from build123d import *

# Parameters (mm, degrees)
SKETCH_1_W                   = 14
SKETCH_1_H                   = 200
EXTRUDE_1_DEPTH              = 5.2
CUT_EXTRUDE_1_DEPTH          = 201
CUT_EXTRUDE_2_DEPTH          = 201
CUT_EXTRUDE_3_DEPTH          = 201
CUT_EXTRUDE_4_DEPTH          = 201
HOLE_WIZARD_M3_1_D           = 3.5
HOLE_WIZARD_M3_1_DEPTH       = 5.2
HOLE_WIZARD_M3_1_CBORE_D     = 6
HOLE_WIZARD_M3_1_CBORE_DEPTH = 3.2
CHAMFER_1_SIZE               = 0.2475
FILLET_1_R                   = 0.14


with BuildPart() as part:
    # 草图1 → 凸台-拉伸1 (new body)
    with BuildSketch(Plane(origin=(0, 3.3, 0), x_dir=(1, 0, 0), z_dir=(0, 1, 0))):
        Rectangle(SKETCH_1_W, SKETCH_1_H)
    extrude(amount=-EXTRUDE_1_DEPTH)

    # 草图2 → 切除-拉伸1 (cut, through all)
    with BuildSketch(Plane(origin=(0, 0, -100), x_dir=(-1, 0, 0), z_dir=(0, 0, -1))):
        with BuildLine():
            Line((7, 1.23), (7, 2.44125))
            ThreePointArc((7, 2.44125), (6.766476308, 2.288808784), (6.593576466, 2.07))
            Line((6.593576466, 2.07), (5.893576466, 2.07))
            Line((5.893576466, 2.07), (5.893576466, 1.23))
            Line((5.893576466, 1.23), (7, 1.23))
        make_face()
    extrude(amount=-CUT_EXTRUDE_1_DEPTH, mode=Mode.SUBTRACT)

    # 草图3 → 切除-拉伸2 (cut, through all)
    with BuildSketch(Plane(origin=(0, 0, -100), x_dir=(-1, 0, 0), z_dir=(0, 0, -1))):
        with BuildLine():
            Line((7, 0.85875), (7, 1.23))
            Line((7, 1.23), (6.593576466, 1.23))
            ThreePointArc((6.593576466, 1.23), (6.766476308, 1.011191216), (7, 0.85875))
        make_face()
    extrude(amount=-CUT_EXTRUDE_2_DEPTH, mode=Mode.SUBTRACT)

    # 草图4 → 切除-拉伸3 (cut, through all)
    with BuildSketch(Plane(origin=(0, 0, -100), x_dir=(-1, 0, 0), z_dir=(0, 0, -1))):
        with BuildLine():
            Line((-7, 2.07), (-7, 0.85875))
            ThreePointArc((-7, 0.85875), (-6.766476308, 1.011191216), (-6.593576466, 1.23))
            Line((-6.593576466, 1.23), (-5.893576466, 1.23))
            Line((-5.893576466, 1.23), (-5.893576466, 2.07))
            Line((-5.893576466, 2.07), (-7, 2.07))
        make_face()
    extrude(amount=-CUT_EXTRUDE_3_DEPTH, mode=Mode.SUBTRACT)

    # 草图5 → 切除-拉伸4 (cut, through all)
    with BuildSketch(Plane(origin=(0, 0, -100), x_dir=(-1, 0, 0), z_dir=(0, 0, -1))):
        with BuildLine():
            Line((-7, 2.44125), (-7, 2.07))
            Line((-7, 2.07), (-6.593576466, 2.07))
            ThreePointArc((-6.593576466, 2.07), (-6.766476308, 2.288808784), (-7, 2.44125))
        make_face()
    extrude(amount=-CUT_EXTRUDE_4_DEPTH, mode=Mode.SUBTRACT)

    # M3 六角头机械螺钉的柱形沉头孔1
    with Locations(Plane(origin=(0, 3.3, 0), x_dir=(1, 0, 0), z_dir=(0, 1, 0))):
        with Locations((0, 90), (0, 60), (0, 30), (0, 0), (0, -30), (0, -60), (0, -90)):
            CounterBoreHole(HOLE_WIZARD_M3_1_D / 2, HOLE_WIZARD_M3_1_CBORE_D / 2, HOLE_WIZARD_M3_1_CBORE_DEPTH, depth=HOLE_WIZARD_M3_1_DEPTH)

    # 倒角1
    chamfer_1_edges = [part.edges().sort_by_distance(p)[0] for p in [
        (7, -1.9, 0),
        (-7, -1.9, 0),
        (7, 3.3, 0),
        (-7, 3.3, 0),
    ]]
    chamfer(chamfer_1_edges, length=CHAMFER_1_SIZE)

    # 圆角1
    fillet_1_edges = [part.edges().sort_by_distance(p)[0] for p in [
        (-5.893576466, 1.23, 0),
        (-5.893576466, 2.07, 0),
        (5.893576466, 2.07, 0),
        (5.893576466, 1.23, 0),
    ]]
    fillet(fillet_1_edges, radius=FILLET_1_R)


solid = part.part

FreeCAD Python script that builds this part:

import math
import FreeCAD as App
import Part
import Sketcher

V = App.Vector
Q = App.Units.Quantity


def edges_at(feature, points):
    """Names of the edges that pass closest to the given points."""
    edges = feature.Shape.Edges
    near = lambda p: min(range(len(edges)), key=lambda i: edges[i].distToShape(Part.Vertex(*p))[0])
    return sorted({f"Edge{near(p) + 1}" for p in points})


def add_polygon(sketch, points):
    """Adds a closed chain of lines whose ends are joined by coincident constraints."""
    first, n = sketch.GeometryCount, len(points)
    for a, b in zip(points, points[1:] + points[:1]):
        sketch.addGeometry(Part.LineSegment(App.Vector(*a, 0), App.Vector(*b, 0)), False)
    for i in range(n):
        sketch.addConstraint(Sketcher.Constraint("Coincident", first + i, 2, first + (i + 1) % n, 1))

doc = App.newDocument("Part")
body = doc.addObject("PartDesign::Body", "Body")

# Sketch on XZ plane
sketch1 = body.newObject("Sketcher::SketchObject", "Sketch")
sketch1.AttachmentSupport = (doc.getObject("XZ_Plane"), [""])
sketch1.MapMode = "FlatFace"
sketch1.AttachmentOffset = App.Placement(V(0, 0, -3.3), App.Rotation())
add_polygon(sketch1, [(-7, -100), (-7, 100), (7, 100), (7, -100)])  # lines 0-3
sketch1.addConstraint([
    Sketcher.Constraint("Vertical", 0),
    Sketcher.Constraint("Horizontal", 1),
    Sketcher.Constraint("Vertical", 2),
    Sketcher.Constraint("Horizontal", 3),
    Sketcher.Constraint("Symmetric", 0, 2, 2, 2, -1, 1),
    Sketcher.Constraint("DistanceX", 1, 1, 1, 2, Q("14 mm")),
    Sketcher.Constraint("DistanceY", 0, 1, 0, 2, Q("200 mm")),
])
pad1 = body.newObject("PartDesign::Pad", "Pad")
pad1.Profile = sketch1
pad1.Length = 5.2

# Sketch on XY plane
sketch2 = body.newObject("Sketcher::SketchObject", "Sketch001")
sketch2.AttachmentSupport = (doc.getObject("XY_Plane"), [""])
sketch2.MapMode = "FlatFace"
sketch2.AttachmentOffset = App.Placement(V(0, 0, -100), App.Rotation())
sketch2.addGeometry([
    Part.LineSegment(V(-7, 1.2, 0), V(-7, 2.4, 0)),  # 0
    Part.ArcOfCircle(Part.Circle(V(-7.4, 1.6, 0), V(0, 0, 1), 0.9), math.radians(29), math.radians(66)),  # 1
    Part.LineSegment(V(-6.6, 2.1, 0), V(-5.9, 2.1, 0)),  # 2
    Part.LineSegment(V(-5.9, 2.1, 0), V(-5.9, 1.2, 0)),  # 3
    Part.LineSegment(V(-5.9, 1.2, 0), V(-7, 1.2, 0)),  # 4
], False)
sketch2.addConstraint([
    Sketcher.Constraint("Coincident", 0, 2, 1, 2),
    Sketcher.Constraint("Coincident", 1, 1, 2, 1),
    Sketcher.Constraint("Coincident", 2, 2, 3, 1),
    Sketcher.Constraint("Coincident", 3, 2, 4, 1),
    Sketcher.Constraint("Coincident", 4, 2, 0, 1),
    Sketcher.Constraint("Vertical", 0),
    Sketcher.Constraint("Horizontal", 2),
    Sketcher.Constraint("Vertical", 3),
    Sketcher.Constraint("Horizontal", 4),
    Sketcher.Constraint("DistanceX", 2, 1, 2, 2, Q("0.7 mm")),
    Sketcher.Constraint("DistanceX", 0, 2, -1, 1, Q("7 mm")),
    Sketcher.Constraint("DistanceY", 3, 2, 3, 1, Q("0.84 mm")),
    Sketcher.Constraint("DistanceX", 1, 3, -1, 1, Q("7.35 mm")),
    Sketcher.Constraint("DistanceY", -1, 1, 1, 3, Q("1.65 mm")),
    Sketcher.Constraint("DistanceY", -1, 1, 1, 1, Q("2.07 mm")),
    Sketcher.Constraint("Radius", 1, Q("0.865203 mm")),
])
pocket1 = body.newObject("PartDesign::Pocket", "Pocket")
pocket1.Profile = sketch2
pocket1.Type = "ThroughAll"
pocket1.Reversed = True

# Sketch on XY plane
sketch3 = body.newObject("Sketcher::SketchObject", "Sketch002")
sketch3.AttachmentSupport = (doc.getObject("XY_Plane"), [""])
sketch3.MapMode = "FlatFace"
sketch3.AttachmentOffset = App.Placement(V(0, 0, -100), App.Rotation())
sketch3.addGeometry([
    Part.LineSegment(V(-7, 0.86, 0), V(-7, 1.23, 0)),
    Part.LineSegment(V(-7, 1.23, 0), V(-6.59, 1.23, 0)),
    Part.ArcOfCircle(Part.Circle(V(-7.35, 1.65, 0), V(0, 0, 1), 0.87), math.radians(-66), math.radians(-29)),
], False)
sketch3.addConstraint([
    Sketcher.Constraint("Coincident", 0, 2, 1, 1),
    Sketcher.Constraint("Coincident", 1, 2, 2, 2),
    Sketcher.Constraint("Coincident", 2, 1, 0, 1),
    Sketcher.Constraint("Vertical", 0),
    Sketcher.Constraint("Horizontal", 1),
    Sketcher.Constraint("DistanceX", 0, 2, -1, 1, Q("7 mm")),
    Sketcher.Constraint("DistanceX", 2, 3, -1, 1, Q("7.35 mm")),
    Sketcher.Constraint("DistanceY", -1, 1, 2, 3, Q("1.65 mm")),
    Sketcher.Constraint("DistanceY", -1, 1, 0, 2, Q("1.23 mm")),
    Sketcher.Constraint("Radius", 2, Q("0.865203 mm")),
])
pocket2 = body.newObject("PartDesign::Pocket", "Pocket001")
pocket2.Profile = sketch3
pocket2.Type = "ThroughAll"
pocket2.Reversed = True

# Sketch on XY plane
sketch4 = body.newObject("Sketcher::SketchObject", "Sketch003")
sketch4.AttachmentSupport = (doc.getObject("XY_Plane"), [""])
sketch4.MapMode = "FlatFace"
sketch4.AttachmentOffset = App.Placement(V(0, 0, -100), App.Rotation())
sketch4.addGeometry([
    Part.LineSegment(V(7, 2.1, 0), V(7, 0.9, 0)),  # 0
    Part.ArcOfCircle(Part.Circle(V(7.4, 1.7, 0), V(0, 0, 1), 0.9), math.radians(-151), math.radians(-114)),  # 1
    Part.LineSegment(V(6.6, 1.2, 0), V(5.9, 1.2, 0)),  # 2
    Part.LineSegment(V(5.9, 1.2, 0), V(5.9, 2.1, 0)),  # 3
    Part.LineSegment(V(5.9, 2.1, 0), V(7, 2.1, 0)),  # 4
], False)
sketch4.addConstraint([
    Sketcher.Constraint("Coincident", 0, 2, 1, 2),
    Sketcher.Constraint("Coincident", 1, 1, 2, 1),
    Sketcher.Constraint("Coincident", 2, 2, 3, 1),
    Sketcher.Constraint("Coincident", 3, 2, 4, 1),
    Sketcher.Constraint("Coincident", 4, 2, 0, 1),
    Sketcher.Constraint("Vertical", 0),
    Sketcher.Constraint("Horizontal", 2),
    Sketcher.Constraint("Vertical", 3),
    Sketcher.Constraint("Horizontal", 4),
    Sketcher.Constraint("DistanceX", 2, 2, 2, 1, Q("0.7 mm")),
    Sketcher.Constraint("DistanceX", -1, 1, 0, 2, Q("7 mm")),
    Sketcher.Constraint("DistanceY", 3, 1, 3, 2, Q("0.84 mm")),
    Sketcher.Constraint("DistanceX", -1, 1, 1, 3, Q("7.35 mm")),
    Sketcher.Constraint("DistanceY", -1, 1, 1, 3, Q("1.65 mm")),
    Sketcher.Constraint("DistanceY", -1, 1, 1, 1, Q("1.23 mm")),
    Sketcher.Constraint("Radius", 1, Q("0.865203 mm")),
])
pocket3 = body.newObject("PartDesign::Pocket", "Pocket002")
pocket3.Profile = sketch4
pocket3.Type = "ThroughAll"
pocket3.Reversed = True

# Sketch on XY plane
sketch5 = body.newObject("Sketcher::SketchObject", "Sketch004")
sketch5.AttachmentSupport = (doc.getObject("XY_Plane"), [""])
sketch5.MapMode = "FlatFace"
sketch5.AttachmentOffset = App.Placement(V(0, 0, -100), App.Rotation())
sketch5.addGeometry([
    Part.LineSegment(V(7, 2.44, 0), V(7, 2.07, 0)),
    Part.LineSegment(V(7, 2.07, 0), V(6.59, 2.07, 0)),
    Part.ArcOfCircle(Part.Circle(V(7.35, 1.65, 0), V(0, 0, 1), 0.87), math.radians(114), math.radians(151)),
], False)
sketch5.addConstraint([
    Sketcher.Constraint("Coincident", 0, 2, 1, 1),
    Sketcher.Constraint("Coincident", 1, 2, 2, 2),
    Sketcher.Constraint("Coincident", 2, 1, 0, 1),
    Sketcher.Constraint("Vertical", 0),
    Sketcher.Constraint("Horizontal", 1),
    Sketcher.Constraint("DistanceX", -1, 1, 0, 2, Q("7 mm")),
    Sketcher.Constraint("DistanceX", -1, 1, 2, 3, Q("7.35 mm")),
    Sketcher.Constraint("DistanceY", -1, 1, 2, 3, Q("1.65 mm")),
    Sketcher.Constraint("DistanceY", -1, 1, 0, 2, Q("2.07 mm")),
    Sketcher.Constraint("Radius", 2, Q("0.865203 mm")),
])
pocket4 = body.newObject("PartDesign::Pocket", "Pocket003")
pocket4.Profile = sketch5
pocket4.Type = "ThroughAll"
pocket4.Reversed = True

# Sketch on XZ plane
sketch6 = body.newObject("Sketcher::SketchObject", "Sketch005")
sketch6.AttachmentSupport = (doc.getObject("XZ_Plane"), [""])
sketch6.MapMode = "FlatFace"
sketch6.AttachmentOffset = App.Placement(V(0, 0, -3.3), App.Rotation())
sketch6.addGeometry([
    Part.Circle(V(0, -90, 0), V(0, 0, 1), 1.8),  # 0
    Part.Circle(V(0, -60, 0), V(0, 0, 1), 1.8),  # 1
    Part.Circle(V(0, -30, 0), V(0, 0, 1), 1.8),  # 2
    Part.Circle(V(0, 0, 0), V(0, 0, 1), 1.8),  # 3
    Part.Circle(V(0, 30, 0), V(0, 0, 1), 1.8),  # 4
    Part.Circle(V(0, 60, 0), V(0, 0, 1), 1.8),  # 5
    Part.Circle(V(0, 90, 0), V(0, 0, 1), 1.8),  # 6
], False)
sketch6.addConstraint([
    Sketcher.Constraint("Coincident", 3, 3, -1, 1),
    Sketcher.Constraint("Equal", 0, 1),
    Sketcher.Constraint("Equal", 1, 2),
    Sketcher.Constraint("Equal", 2, 3),
    Sketcher.Constraint("Equal", 3, 4),
    Sketcher.Constraint("Equal", 4, 5),
    Sketcher.Constraint("Equal", 5, 6),
    Sketcher.Constraint("Symmetric", 2, 3, 4, 3, -1, 1),
    Sketcher.Constraint("Symmetric", 1, 3, 5, 3, -1, 1),
    Sketcher.Constraint("Symmetric", 0, 3, 6, 3, -1, 1),
    Sketcher.Constraint("PointOnObject", 0, 3, -2),
    Sketcher.Constraint("PointOnObject", 1, 3, -2),
    Sketcher.Constraint("PointOnObject", 2, 3, -2),
    Sketcher.Constraint("Diameter", 0, Q("3.5 mm")),
    Sketcher.Constraint("DistanceY", 0, 3, -1, 1, Q("90 mm")),
    Sketcher.Constraint("DistanceY", 1, 3, -1, 1, Q("60 mm")),
    Sketcher.Constraint("DistanceY", 2, 3, -1, 1, Q("30 mm")),
])
doc.recompute()
hole = body.newObject("PartDesign::Hole", "Hole")
hole.Profile = sketch6
hole.ThreadType = "None"
hole.Diameter = 3.5
hole.DepthType = "Dimension"
hole.Depth = 5.2
hole.DrillPoint = "Flat"
hole.HoleCutType = "Counterbore"
hole.HoleCutDiameter = 6
hole.HoleCutDepth = 3.2
hole.Reversed = True
doc.recompute()

chamfer = body.newObject("PartDesign::Chamfer", "Chamfer")
chamfer.Base = (hole, edges_at(hole, [
    (7, -1.9, 0),
    (-7, -1.9, 0),
    (7, 3.3, 0),
    (-7, 3.3, 0),
]))
chamfer.Size = 0.2475
doc.recompute()

fillet = body.newObject("PartDesign::Fillet", "Fillet")
fillet.Base = (chamfer, edges_at(chamfer, [
    (-5.894, 1.23, 0),
    (-5.894, 2.07, 0),
    (5.894, 2.07, 0),
    (5.894, 1.23, 0),
]))
fillet.Radius = 0.14

doc.recompute()
